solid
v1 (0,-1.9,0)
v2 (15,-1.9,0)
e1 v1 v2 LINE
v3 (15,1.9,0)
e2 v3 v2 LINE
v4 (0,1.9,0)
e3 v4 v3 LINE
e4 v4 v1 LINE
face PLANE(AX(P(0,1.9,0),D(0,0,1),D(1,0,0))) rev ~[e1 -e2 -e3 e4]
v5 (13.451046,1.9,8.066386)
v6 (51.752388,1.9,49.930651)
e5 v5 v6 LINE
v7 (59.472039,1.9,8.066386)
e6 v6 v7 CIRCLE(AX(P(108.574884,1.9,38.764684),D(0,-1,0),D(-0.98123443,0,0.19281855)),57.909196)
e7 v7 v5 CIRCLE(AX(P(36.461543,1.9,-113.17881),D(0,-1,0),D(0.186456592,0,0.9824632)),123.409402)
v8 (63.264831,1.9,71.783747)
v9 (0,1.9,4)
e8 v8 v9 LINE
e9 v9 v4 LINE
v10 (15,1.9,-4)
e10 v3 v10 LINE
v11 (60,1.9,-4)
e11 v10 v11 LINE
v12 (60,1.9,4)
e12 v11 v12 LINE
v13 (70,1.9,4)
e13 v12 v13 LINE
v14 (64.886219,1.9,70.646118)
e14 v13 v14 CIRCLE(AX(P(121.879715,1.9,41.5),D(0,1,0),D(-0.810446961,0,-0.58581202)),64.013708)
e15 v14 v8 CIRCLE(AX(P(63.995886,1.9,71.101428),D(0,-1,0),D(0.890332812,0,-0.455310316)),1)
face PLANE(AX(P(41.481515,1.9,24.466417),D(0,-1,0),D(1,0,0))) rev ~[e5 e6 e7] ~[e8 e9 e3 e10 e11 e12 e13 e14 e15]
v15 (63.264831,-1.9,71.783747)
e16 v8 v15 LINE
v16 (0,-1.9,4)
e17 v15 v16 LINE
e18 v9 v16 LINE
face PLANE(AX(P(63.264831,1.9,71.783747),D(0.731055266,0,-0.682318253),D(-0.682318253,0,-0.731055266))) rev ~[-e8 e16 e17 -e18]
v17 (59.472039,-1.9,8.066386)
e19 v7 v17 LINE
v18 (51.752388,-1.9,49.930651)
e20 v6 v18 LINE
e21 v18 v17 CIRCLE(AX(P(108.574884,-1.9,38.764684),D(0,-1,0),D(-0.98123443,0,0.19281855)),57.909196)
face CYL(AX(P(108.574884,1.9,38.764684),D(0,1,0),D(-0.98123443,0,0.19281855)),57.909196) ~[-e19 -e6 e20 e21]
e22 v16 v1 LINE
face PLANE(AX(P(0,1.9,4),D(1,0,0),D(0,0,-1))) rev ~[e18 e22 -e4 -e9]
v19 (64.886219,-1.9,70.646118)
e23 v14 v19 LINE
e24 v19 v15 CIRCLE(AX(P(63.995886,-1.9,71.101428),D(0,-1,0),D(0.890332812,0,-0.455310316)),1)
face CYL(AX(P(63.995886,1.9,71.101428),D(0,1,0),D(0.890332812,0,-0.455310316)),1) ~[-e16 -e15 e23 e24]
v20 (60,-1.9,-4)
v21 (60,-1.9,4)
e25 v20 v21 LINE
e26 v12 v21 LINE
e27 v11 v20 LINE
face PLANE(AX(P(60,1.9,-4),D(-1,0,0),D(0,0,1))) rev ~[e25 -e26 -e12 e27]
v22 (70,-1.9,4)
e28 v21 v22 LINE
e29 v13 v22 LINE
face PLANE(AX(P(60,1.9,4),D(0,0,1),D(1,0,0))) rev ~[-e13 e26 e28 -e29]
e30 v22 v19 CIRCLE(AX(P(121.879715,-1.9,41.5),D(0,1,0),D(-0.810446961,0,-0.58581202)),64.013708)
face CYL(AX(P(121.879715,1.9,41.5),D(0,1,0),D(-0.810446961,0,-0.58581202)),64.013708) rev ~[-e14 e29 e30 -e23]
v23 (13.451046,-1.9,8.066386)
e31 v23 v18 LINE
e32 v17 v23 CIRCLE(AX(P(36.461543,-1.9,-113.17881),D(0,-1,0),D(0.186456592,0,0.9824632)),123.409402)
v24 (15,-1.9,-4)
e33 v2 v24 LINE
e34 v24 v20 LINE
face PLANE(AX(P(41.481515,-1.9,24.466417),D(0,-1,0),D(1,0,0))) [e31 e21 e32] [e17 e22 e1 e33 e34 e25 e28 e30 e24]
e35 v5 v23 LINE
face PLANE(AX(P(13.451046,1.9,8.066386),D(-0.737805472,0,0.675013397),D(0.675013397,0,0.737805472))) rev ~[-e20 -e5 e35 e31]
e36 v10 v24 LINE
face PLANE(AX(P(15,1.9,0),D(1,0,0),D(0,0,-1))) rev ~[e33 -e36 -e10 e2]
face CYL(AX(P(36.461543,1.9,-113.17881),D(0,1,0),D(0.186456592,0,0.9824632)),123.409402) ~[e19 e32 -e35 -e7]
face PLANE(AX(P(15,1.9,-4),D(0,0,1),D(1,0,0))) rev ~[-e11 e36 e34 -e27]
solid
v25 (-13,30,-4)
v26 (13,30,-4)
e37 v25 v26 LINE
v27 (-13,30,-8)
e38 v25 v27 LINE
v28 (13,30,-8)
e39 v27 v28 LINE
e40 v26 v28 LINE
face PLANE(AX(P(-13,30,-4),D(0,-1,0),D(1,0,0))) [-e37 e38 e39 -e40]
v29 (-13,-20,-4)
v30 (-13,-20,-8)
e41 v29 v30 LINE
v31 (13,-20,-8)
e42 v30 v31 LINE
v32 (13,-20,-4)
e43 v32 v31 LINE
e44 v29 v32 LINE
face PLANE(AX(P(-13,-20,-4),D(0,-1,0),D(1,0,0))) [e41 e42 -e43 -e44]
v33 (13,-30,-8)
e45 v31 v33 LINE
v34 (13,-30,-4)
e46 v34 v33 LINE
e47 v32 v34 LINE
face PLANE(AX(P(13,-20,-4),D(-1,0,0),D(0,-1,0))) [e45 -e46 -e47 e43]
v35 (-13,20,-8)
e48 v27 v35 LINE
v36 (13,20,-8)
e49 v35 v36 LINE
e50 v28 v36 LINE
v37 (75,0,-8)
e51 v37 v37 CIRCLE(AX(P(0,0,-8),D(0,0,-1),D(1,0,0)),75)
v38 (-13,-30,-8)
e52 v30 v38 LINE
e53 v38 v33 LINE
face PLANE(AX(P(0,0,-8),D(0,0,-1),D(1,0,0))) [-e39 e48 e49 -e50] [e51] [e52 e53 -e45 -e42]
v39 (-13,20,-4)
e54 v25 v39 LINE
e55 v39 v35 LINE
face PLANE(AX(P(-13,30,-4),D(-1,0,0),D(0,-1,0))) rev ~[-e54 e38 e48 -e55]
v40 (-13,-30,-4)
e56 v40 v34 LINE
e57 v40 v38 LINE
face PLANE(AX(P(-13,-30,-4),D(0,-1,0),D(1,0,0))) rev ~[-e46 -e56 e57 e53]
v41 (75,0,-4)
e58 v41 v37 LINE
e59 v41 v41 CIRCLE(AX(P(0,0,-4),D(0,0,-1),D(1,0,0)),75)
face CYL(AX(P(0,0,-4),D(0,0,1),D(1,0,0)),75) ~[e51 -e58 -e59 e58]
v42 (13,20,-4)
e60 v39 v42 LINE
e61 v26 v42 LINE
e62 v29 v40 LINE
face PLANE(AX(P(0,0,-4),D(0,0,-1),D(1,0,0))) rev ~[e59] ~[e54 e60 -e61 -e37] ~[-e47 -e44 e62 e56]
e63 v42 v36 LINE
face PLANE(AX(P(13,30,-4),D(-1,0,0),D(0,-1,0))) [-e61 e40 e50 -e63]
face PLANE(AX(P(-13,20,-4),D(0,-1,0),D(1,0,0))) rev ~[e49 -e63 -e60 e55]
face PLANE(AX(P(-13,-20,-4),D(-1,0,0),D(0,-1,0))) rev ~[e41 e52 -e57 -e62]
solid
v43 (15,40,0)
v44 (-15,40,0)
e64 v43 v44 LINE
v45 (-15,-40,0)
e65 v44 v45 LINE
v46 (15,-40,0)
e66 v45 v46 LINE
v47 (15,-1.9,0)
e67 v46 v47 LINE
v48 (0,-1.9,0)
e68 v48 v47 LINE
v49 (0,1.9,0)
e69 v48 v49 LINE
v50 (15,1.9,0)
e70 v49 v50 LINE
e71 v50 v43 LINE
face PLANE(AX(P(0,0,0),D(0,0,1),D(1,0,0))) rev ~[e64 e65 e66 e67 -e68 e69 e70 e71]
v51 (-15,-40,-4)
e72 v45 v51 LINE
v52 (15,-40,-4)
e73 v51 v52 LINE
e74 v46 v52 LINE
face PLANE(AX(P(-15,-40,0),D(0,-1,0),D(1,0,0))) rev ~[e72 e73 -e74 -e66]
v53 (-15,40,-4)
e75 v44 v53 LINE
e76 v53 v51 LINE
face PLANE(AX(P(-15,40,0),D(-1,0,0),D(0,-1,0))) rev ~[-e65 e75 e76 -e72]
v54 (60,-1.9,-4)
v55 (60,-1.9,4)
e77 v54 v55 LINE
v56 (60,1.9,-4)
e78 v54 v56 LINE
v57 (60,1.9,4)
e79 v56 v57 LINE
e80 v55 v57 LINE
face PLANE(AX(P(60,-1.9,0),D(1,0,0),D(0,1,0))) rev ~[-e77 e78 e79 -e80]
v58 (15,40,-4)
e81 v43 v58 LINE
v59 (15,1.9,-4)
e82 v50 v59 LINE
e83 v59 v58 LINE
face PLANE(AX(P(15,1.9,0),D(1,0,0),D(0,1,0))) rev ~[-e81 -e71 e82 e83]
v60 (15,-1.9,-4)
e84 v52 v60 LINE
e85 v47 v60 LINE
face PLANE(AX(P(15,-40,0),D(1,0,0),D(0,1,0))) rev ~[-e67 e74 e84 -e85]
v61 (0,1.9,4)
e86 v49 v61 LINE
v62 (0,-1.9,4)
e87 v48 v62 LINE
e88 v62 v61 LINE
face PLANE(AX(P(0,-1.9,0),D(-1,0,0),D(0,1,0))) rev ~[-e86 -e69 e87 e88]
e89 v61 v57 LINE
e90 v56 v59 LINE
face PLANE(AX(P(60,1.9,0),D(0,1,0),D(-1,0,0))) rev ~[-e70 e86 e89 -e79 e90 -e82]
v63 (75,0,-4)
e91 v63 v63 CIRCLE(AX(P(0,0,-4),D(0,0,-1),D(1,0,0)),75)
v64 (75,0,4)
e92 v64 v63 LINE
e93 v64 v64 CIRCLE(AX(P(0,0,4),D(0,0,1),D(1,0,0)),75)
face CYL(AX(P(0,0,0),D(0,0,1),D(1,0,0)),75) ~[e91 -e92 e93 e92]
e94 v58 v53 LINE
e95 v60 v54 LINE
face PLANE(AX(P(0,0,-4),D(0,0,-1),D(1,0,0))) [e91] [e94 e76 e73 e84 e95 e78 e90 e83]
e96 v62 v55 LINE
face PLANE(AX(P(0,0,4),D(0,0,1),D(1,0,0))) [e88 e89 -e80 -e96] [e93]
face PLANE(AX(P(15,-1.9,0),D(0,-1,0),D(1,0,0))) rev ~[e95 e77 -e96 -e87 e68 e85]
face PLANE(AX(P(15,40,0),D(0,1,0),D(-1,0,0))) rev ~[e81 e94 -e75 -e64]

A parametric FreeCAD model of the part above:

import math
import FreeCAD as App
import Part
import Sketcher

V = App.Vector
Q = App.Units.Quantity

doc = App.newDocument("Part")
body = doc.addObject("PartDesign::Body", "Body")

sketch1 = body.newObject("Sketcher::SketchObject", "Sketch")
sketch1.AttachmentSupport = (doc.getObject("XY_Plane"), [""])
sketch1.MapMode = "FlatFace"
sketch1.addGeometry(Part.Circle(V(0, 0, 0), V(0, 0, 1), 75), False)
sketch1.addGeometry(Part.LineSegment(V(60, -1.9, 0), V(0, -1.9, 0)), False)
sketch1.addGeometry(Part.LineSegment(V(0, -1.9, 0), V(0, 1.9, 0)), False)
sketch1.addGeometry(Part.LineSegment(V(0, 1.9, 0), V(60, 1.9, 0)), False)
sketch1.addGeometry(Part.LineSegment(V(60, 1.9, 0), V(60, -1.9, 0)), False)
sketch1.addConstraint(Sketcher.Constraint("Coincident", 1, 2, 2, 1))
sketch1.addConstraint(Sketcher.Constraint("Coincident", 2, 2, 3, 1))
sketch1.addConstraint(Sketcher.Constraint("Coincident", 3, 2, 4, 1))
sketch1.addConstraint(Sketcher.Constraint("Coincident", 4, 2, 1, 1))
sketch1.addConstraint(Sketcher.Constraint("Horizontal", 1))
sketch1.addConstraint(Sketcher.Constraint("Vertical", 2))
sketch1.addConstraint(Sketcher.Constraint("Horizontal", 3))
sketch1.addConstraint(Sketcher.Constraint("Vertical", 4))
sketch1.addConstraint(Sketcher.Constraint("Coincident", 0, 3, -1, 1))
sketch1.addConstraint(Sketcher.Constraint("Symmetric", 1, 2, 2, 2, -1, 1))
sketch1.addConstraint(Sketcher.Constraint("Diameter", 0, Q("150 mm")))
sketch1.addConstraint(Sketcher.Constraint("DistanceX", 1, 2, 1, 1, Q("60 mm")))
sketch1.addConstraint(Sketcher.Constraint("DistanceY", 2, 1, 2, 2, Q("3.8 mm")))
pad1 = body.newObject("PartDesign::Pad", "Pad")
pad1.Profile = sketch1
pad1.Length = 4

sketch2 = body.newObject("Sketcher::SketchObject", "Sketch001")
sketch2.AttachmentSupport = (doc.getObject("XY_Plane"), [""])
sketch2.MapMode = "FlatFace"
sketch2.addGeometry(Part.Circle(V(0, 0, 0), V(0, 0, 1), 75), False)
sketch2.addGeometry(Part.LineSegment(V(-15, -40, 0), V(15, -40, 0)), False)
sketch2.addGeometry(Part.LineSegment(V(15, -40, 0), V(15, -1.9, 0)), False)
sketch2.addGeometry(Part.LineSegment(V(15, -1.9, 0), V(60, -1.9, 0)), False)
sketch2.addGeometry(Part.LineSegment(V(60, -1.9, 0), V(60, 1.9, 0)), False)
sketch2.addGeometry(Part.LineSegment(V(60, 1.9, 0), V(15, 1.9, 0)), False)
sketch2.addGeometry(Part.LineSegment(V(15, 1.9, 0), V(15, 40, 0)), False)
sketch2.addGeometry(Part.LineSegment(V(15, 40, 0), V(-15, 40, 0)), False)
sketch2.addGeometry(Part.LineSegment(V(-15, 40, 0), V(-15, -40, 0)), False)
sketch2.addConstraint(Sketcher.Constraint("Coincident", 1, 2, 2, 1))
sketch2.addConstraint(Sketcher.Constraint("Coincident", 2, 2, 3, 1))
sketch2.addConstraint(Sketcher.Constraint("Coincident", 3, 2, 4, 1))
sketch2.addConstraint(Sketcher.Constraint("Coincident", 4, 2, 5, 1))
sketch2.addConstraint(Sketcher.Constraint("Coincident", 5, 2, 6, 1))
sketch2.addConstraint(Sketcher.Constraint("Coincident", 6, 2, 7, 1))
sketch2.addConstraint(Sketcher.Constraint("Coincident", 7, 2, 8, 1))
sketch2.addConstraint(Sketcher.Constraint("Coincident", 8, 2, 1, 1))
sketch2.addConstraint(Sketcher.Constraint("Horizontal", 1))
sketch2.addConstraint(Sketcher.Constraint("Vertical", 2))
sketch2.addConstraint(Sketcher.Constraint("Horizontal", 3))
sketch2.addConstraint(Sketcher.Constraint("Vertical", 4))
sketch2.addConstraint(Sketcher.Constraint("Horizontal", 5))
sketch2.addConstraint(Sketcher.Constraint("Vertical", 6))
sketch2.addConstraint(Sketcher.Constraint("Horizontal", 7))
sketch2.addConstraint(Sketcher.Constraint("Vertical", 8))
sketch2.addConstraint(Sketcher.Constraint("Coincident", 0, 3, -1, 1))
sketch2.addConstraint(Sketcher.Constraint("Symmetric", 1, 2, 7, 2, -1, 1))
sketch2.addConstraint(Sketcher.Constraint("Symmetric", 2, 2, 5, 2, -1))
sketch2.addConstraint(Sketcher.Constraint("Diameter", 0, Q("150 mm")))
sketch2.addConstraint(Sketcher.Constraint("DistanceX", 1, 1, 1, 2, Q("30 mm")))
sketch2.addConstraint(Sketcher.Constraint("DistanceX", 3, 1, 3, 2, Q("45 mm")))
sketch2.addConstraint(Sketcher.Constraint("DistanceY", 8, 2, 8, 1, Q("80 mm")))
sketch2.addConstraint(Sketcher.Constraint("DistanceY", 2, 1, 2, 2, Q("38.1 mm")))
pad2 = body.newObject("PartDesign::Pad", "Pad001")
pad2.Profile = sketch2
pad2.Length = 4
pad2.Reversed = True
body2 = doc.addObject("PartDesign::Body", "Body001")

sketch3 = body2.newObject("Sketcher::SketchObject", "Sketch002")
sketch3.AttachmentSupport = (doc.getObject("XY_Plane001"), [""])
sketch3.MapMode = "FlatFace"
sketch3.AttachmentOffset = App.Placement(V(0, 0, -4), App.Rotation())
sketch3.addGeometry(Part.Circle(V(0, 0, 0), V(0, 0, 1), 75), False)
sketch3.addGeometry(Part.LineSegment(V(13, 30, 0), V(-13, 30, 0)), False)
sketch3.addGeometry(Part.LineSegment(V(-13, 30, 0), V(-13, 20, 0)), False)
sketch3.addGeometry(Part.LineSegment(V(-13, 20, 0), V(13, 20, 0)), False)
sketch3.addGeometry(Part.LineSegment(V(13, 20, 0), V(13, 30, 0)), False)
sketch3.addGeometry(Part.LineSegment(V(13, -20, 0), V(-13, -20, 0)), False)
sketch3.addGeometry(Part.LineSegment(V(-13, -20, 0), V(-13, -30, 0)), False)
sketch3.addGeometry(Part.LineSegment(V(-13, -30, 0), V(13, -30, 0)), False)
sketch3.addGeometry(Part.LineSegment(V(13, -30, 0), V(13, -20, 0)), False)
sketch3.addConstraint(Sketcher.Constraint("Coincident", 1, 2, 2, 1))
sketch3.addConstraint(Sketcher.Constraint("Coincident", 2, 2, 3, 1))
sketch3.addConstraint(Sketcher.Constraint("Coincident", 3, 2, 4, 1))
sketch3.addConstraint(Sketcher.Constraint("Coincident", 4, 2, 1, 1))
sketch3.addConstraint(Sketcher.Constraint("Coincident", 5, 2, 6, 1))
sketch3.addConstraint(Sketcher.Constraint("Coincident", 6, 2, 7, 1))
sketch3.addConstraint(Sketcher.Constraint("Coincident", 7, 2, 8, 1))
sketch3.addConstraint(Sketcher.Constraint("Coincident", 8, 2, 5, 1))
sketch3.addConstraint(Sketcher.Constraint("Horizontal", 1))
sketch3.addConstraint(Sketcher.Constraint("Vertical", 2))
sketch3.addConstraint(Sketcher.Constraint("Horizontal", 3))
sketch3.addConstraint(Sketcher.Constraint("Vertical", 4))
sketch3.addConstraint(Sketcher.Constraint("Horizontal", 5))
sketch3.addConstraint(Sketcher.Constraint("Vertical", 6))
sketch3.addConstraint(Sketcher.Constraint("Horizontal", 7))
sketch3.addConstraint(Sketcher.Constraint("Vertical", 8))
sketch3.addConstraint(Sketcher.Constraint("Coincident", 0, 3, -1, 1))
sketch3.addConstraint(Sketcher.Constraint("Symmetric", 3, 2, 5, 2, -1, 1))
sketch3.addConstraint(Sketcher.Constraint("Symmetric", 1, 2, 7, 2, -1, 1))
sketch3.addConstraint(Sketcher.Constraint("Vertical", 2, 2, 5, 2))
sketch3.addConstraint(Sketcher.Constraint("Diameter", 0, Q("150 mm")))
sketch3.addConstraint(Sketcher.Constraint("DistanceX", 1, 2, 1, 1, Q("26 mm")))
sketch3.addConstraint(Sketcher.Constraint("DistanceY", 2, 2, 2, 1, Q("10 mm")))
sketch3.addConstraint(Sketcher.Constraint("DistanceY", -1, 1, 1, 2, Q("30 mm")))
pad3 = body2.newObject("PartDesign::Pad", "Pad002")
pad3.Profile = sketch3
pad3.Length = 4
pad3.Reversed = True
body3 = doc.addObject("PartDesign::Body", "Body002")

sketch4 = body3.newObject("Sketcher::SketchObject", "Sketch003")
sketch4.AttachmentSupport = (doc.getObject("XZ_Plane002"), [""])
sketch4.MapMode = "FlatFace"
sketch4.AttachmentOffset = App.Placement(V(0, 0, -1.9), App.Rotation())
sketch4.addGeometry(Part.LineSegment(V(0, 4, 0), V(0, 0, 0)), False)
sketch4.addGeometry(Part.LineSegment(V(0, 0, 0), V(15, 0, 0)), False)
sketch4.addGeometry(Part.LineSegment(V(15, 0, 0), V(15, -4, 0)), False)
sketch4.addGeometry(Part.LineSegment(V(15, -4, 0), V(60, -4, 0)), False)
sketch4.addGeometry(Part.LineSegment(V(60, -4, 0), V(60, 4, 0)), False)
sketch4.addGeometry(Part.LineSegment(V(60, 4, 0), V(70, 4, 0)), False)
sketch4.addGeometry(Part.ArcOfCircle(Part.Circle(V(121.9, 41.5, 0), V(0, 0, 1), 64), math.radians(153), math.radians(216)), False)
sketch4.addGeometry(Part.ArcOfCircle(Part.Circle(V(64, 71.1, 0), V(0, 0, 1), 1), math.radians(-27), math.radians(137)), False)
sketch4.addGeometry(Part.LineSegment(V(63.3, 71.8, 0), V(0, 4, 0)), False)
sketch4.addGeometry(Part.ArcOfCircle(Part.Circle(V(36.5, -113.2, 0), V(0, 0, 1), 123.4), math.radians(79), math.radians(101)), False)
sketch4.addGeometry(Part.LineSegment(V(13.5, 8.1, 0), V(51.8, 49.9, 0)), False)
sketch4.addGeometry(Part.ArcOfCircle(Part.Circle(V(108.6, 38.8, 0), V(0, 0, 1), 57.9), math.radians(169), math.radians(212)), False)
sketch4.addConstraint(Sketcher.Constraint("Coincident", 0, 2, 1, 1))
sketch4.addConstraint(Sketcher.Constraint("Coincident", 1, 2, 2, 1))
sketch4.addConstraint(Sketcher.Constraint("Coincident", 2, 2, 3, 1))
sketch4.addConstraint(Sketcher.Constraint("Coincident", 3, 2, 4, 1))
sketch4.addConstraint(Sketcher.Constraint("Coincident", 4, 2, 5, 1))
sketch4.addConstraint(Sketcher.Constraint("Coincident", 5, 2, 6, 2))
sketch4.addConstraint(Sketcher.Constraint("Tangent", 6, 1, 7, 1))
sketch4.addConstraint(Sketcher.Constraint("Tangent", 7, 2, 8, 1))
sketch4.addConstraint(Sketcher.Constraint("Coincident", 8, 2, 0, 1))
sketch4.addConstraint(Sketcher.Constraint("Coincident", 9, 2, 10, 1))
sketch4.addConstraint(Sketcher.Constraint("Coincident", 10, 2, 11, 1))
sketch4.addConstraint(Sketcher.Constraint("Coincident", 11, 2, 9, 1))
sketch4.addConstraint(Sketcher.Constraint("Vertical", 0))
sketch4.addConstraint(Sketcher.Constraint("Horizontal", 1))
sketch4.addConstraint(Sketcher.Constraint("Vertical", 2))
sketch4.addConstraint(Sketcher.Constraint("Horizontal", 3))
sketch4.addConstraint(Sketcher.Constraint("Vertical", 4))
sketch4.addConstraint(Sketcher.Constraint("Horizontal", 5))
sketch4.addConstraint(Sketcher.Constraint("Coincident", 0, 2, -1, 1))
sketch4.addConstraint(Sketcher.Constraint("Horizontal", 5, 2, 8, 2))
sketch4.addConstraint(Sketcher.Constraint("Horizontal", 9, 2, 11, 2))
sketch4.addConstraint(Sketcher.Constraint("Equal", 0, 2))
sketch4.addConstraint(Sketcher.Constraint("Radius", 7, Q("1 mm")))
sketch4.addConstraint(Sketcher.Constraint("DistanceX", 1, 1, 1, 2, Q("15 mm")))
sketch4.addConstraint(Sketcher.Constraint("DistanceX", 3, 1, 3, 2, Q("45 mm")))
sketch4.addConstraint(Sketcher.Constraint("DistanceX", 5, 1, 5, 2, Q("10 mm")))
sketch4.addConstraint(Sketcher.Constraint("DistanceY", 0, 2, 0, 1, Q("4 mm")))
sketch4.addConstraint(Sketcher.Constraint("DistanceY", -1, 1, 6, 3, Q("41.5 mm")))
sketch4.addConstraint(Sketcher.Constraint("Radius", 6, Q("64.013708 mm")))
sketch4.addConstraint(Sketcher.Constraint("Radius", 9, Q("123.409402 mm")))
sketch4.addConstraint(Sketcher.Constraint("Radius", 11, Q("57.909196 mm")))
sketch4.addConstraint(Sketcher.Constraint("DistanceX", 7, 3, 11, 3, Q("44.578998 mm")))
sketch4.addConstraint(Sketcher.Constraint("DistanceX", 10, 2, 7, 3, Q("12.243498 mm")))
sketch4.addConstraint(Sketcher.Constraint("DistanceY", -1, 1, 7, 3, Q("71.101428 mm")))
sketch4.addConstraint(Sketcher.Constraint("DistanceY", 9, 3, -1, 1, Q("113.17881 mm")))
sketch4.addConstraint(Sketcher.Constraint("DistanceY", -1, 1, 10, 2, Q("49.930651 mm")))
sketch4.addConstraint(Sketcher.Constraint("DistanceX", 9, 3, 11, 3, Q("72.113342 mm")))
pad4 = body3.newObject("PartDesign::Pad", "Pad003")
pad4.Profile = sketch4
pad4.Length = 3.8

doc.recompute()
